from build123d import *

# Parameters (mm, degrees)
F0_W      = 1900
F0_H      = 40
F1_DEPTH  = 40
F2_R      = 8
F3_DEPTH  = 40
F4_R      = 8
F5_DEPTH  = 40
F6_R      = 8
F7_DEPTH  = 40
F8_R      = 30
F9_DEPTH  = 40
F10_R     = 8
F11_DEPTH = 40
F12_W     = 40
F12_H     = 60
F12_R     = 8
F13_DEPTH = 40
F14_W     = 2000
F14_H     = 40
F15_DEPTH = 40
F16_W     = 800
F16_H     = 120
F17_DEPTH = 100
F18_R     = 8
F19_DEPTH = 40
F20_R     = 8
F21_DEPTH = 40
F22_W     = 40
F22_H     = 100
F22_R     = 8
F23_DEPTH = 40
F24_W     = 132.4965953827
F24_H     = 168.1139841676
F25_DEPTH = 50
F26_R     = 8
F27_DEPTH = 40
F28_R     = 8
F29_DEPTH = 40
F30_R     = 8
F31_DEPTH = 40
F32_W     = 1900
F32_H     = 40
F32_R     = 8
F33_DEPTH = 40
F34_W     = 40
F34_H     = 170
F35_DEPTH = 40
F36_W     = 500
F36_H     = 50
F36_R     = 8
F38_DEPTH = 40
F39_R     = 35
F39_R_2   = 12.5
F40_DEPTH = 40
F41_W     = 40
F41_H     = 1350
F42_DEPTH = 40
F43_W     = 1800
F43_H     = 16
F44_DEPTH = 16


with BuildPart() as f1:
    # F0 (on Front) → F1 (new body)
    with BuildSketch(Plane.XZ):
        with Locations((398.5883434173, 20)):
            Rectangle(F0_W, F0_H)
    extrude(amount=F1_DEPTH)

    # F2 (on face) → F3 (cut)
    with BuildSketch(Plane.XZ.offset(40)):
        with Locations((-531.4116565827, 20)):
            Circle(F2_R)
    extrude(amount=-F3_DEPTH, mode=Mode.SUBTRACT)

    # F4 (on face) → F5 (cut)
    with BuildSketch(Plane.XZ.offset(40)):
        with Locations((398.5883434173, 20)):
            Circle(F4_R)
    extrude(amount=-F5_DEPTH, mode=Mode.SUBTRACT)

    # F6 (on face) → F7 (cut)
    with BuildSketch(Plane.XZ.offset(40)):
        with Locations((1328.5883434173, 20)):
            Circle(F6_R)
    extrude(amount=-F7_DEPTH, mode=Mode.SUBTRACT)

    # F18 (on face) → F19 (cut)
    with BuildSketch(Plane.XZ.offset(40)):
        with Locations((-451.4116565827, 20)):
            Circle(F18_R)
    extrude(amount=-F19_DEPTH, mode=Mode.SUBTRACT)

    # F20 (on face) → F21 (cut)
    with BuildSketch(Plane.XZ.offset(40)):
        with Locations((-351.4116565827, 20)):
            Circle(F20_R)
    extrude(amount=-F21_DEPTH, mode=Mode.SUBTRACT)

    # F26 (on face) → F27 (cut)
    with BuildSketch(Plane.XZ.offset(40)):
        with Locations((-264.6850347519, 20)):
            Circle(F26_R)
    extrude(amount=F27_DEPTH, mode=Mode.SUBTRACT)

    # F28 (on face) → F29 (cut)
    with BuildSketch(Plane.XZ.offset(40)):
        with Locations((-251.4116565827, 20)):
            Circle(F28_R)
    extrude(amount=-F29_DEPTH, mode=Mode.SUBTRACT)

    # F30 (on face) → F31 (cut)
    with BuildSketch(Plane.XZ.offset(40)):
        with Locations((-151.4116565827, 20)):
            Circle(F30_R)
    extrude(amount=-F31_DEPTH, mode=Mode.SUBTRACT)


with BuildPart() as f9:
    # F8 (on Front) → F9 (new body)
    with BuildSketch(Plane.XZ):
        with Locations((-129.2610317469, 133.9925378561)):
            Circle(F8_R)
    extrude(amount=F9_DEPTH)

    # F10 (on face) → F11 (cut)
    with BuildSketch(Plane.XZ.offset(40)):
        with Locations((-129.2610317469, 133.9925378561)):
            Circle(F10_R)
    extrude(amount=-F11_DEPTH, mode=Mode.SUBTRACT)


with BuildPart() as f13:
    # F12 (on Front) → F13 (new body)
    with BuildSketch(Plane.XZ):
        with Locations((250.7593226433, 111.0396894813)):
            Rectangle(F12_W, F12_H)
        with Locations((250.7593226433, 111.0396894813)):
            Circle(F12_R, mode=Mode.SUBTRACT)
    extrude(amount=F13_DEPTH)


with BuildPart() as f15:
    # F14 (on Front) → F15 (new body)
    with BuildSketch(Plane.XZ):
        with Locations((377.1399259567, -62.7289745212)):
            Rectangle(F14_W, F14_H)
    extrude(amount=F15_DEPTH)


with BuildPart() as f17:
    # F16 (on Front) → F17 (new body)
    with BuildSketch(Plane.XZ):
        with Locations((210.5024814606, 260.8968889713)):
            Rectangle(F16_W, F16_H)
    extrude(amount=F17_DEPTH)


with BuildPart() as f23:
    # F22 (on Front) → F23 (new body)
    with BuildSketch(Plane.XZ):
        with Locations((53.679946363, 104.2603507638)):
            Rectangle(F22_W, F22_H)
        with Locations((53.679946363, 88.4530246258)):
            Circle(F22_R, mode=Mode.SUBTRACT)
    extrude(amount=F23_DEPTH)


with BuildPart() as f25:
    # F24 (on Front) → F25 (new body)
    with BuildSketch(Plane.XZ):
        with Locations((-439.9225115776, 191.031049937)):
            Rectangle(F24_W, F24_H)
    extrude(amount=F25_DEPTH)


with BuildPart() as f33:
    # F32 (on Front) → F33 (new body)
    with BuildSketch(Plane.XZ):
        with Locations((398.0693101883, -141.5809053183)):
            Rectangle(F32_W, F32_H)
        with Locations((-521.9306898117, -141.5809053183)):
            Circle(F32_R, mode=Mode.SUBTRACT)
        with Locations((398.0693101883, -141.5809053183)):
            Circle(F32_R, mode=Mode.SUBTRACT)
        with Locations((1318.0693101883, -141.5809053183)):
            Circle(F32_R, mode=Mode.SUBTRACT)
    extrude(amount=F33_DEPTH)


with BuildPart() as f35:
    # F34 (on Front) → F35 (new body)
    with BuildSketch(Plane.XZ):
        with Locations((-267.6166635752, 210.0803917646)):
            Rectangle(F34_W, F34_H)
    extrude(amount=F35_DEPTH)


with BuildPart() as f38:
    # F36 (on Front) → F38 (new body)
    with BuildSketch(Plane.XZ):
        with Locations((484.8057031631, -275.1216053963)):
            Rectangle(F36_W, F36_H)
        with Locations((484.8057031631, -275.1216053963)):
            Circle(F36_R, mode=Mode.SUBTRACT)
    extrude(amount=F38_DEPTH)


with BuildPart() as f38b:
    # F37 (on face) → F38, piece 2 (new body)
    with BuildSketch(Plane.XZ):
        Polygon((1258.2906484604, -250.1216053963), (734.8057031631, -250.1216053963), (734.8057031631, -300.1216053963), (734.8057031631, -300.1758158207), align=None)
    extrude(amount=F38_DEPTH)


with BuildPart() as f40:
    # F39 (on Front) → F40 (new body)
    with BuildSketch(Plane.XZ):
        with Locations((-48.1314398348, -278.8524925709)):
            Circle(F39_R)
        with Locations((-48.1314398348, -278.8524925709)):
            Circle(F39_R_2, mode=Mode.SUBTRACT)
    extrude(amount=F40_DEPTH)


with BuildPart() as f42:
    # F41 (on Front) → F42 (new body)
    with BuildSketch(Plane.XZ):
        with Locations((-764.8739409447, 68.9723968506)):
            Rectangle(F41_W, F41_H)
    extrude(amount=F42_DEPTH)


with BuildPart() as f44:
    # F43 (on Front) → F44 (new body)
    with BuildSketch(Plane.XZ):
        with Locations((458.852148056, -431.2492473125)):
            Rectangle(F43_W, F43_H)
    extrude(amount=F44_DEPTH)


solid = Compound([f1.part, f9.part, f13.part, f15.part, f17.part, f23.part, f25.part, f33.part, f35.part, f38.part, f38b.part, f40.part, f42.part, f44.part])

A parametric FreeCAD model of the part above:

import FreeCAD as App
import Part
import Sketcher
Q = App.Units.Quantity


def add_polygon(sketch, points):
    """Adds a closed chain of lines whose ends are joined by coincident constraints."""
    first, n = sketch.GeometryCount, len(points)
    for a, b in zip(points, points[1:] + points[:1]):
        sketch.addGeometry(Part.LineSegment(App.Vector(*a, 0), App.Vector(*b, 0)), False)
    for i in range(n):
        sketch.addConstraint(Sketcher.Constraint("Coincident", first + i, 2, first + (i + 1) % n, 1))

doc = App.newDocument("Part")
body = doc.addObject("PartDesign::Body", "Body")

# Sketch on XZ plane
sketch1 = body.newObject("Sketcher::SketchObject", "Sketch")
sketch1.AttachmentSupport = (doc.getObject("XZ_Plane"), [""])
sketch1.MapMode = "FlatFace"
add_polygon(sketch1, [(-551.411657, 40), (-551.411657, 0), (1348.588343, 0), (1348.588343, 40)])  # lines 0-3
sketch1.addConstraint([
    Sketcher.Constraint("Vertical", 0),
    Sketcher.Constraint("Horizontal", 1),
    Sketcher.Constraint("Vertical", 2),
    Sketcher.Constraint("Horizontal", 3),
    Sketcher.Constraint("PointOnObject", 0, 2, -1),
    Sketcher.Constraint("DistanceX", 1, 1, 1, 2, Q("1900 mm")),
    Sketcher.Constraint("DistanceY", 0, 2, 0, 1, Q("40 mm")),
    Sketcher.Constraint("DistanceX", 0, 2, -1, 1, Q("551.411657 mm")),
])
pad1 = body.newObject("PartDesign::Pad", "Pad")
pad1.Profile = sketch1
pad1.Length = 40

# Sketch on XZ plane
sketch2 = body.newObject("Sketcher::SketchObject", "Sketch001")
sketch2.AttachmentSupport = (doc.getObject("XZ_Plane"), [""])
sketch2.MapMode = "FlatFace"
sketch2.AttachmentOffset = App.Placement(App.Vector(0, 0, 40), App.Rotation())
sketch2.addGeometry(Part.Circle(App.Vector(-531.411657, 20, 0), App.Vector(0, 0, 1), 8), False)
sketch2.addConstraint([
    Sketcher.Constraint("Diameter", 0, Q("16 mm")),
    Sketcher.Constraint("DistanceY", -1, 1, 0, 3, Q("20 mm")),
    Sketcher.Constraint("DistanceX", 0, 3, -1, 1, Q("531.411657 mm")),
])
pocket1 = body.newObject("PartDesign::Pocket", "Pocket")
pocket1.Profile = sketch2
pocket1.Length = 40

# Sketch on XZ plane
sketch3 = body.newObject("Sketcher::SketchObject", "Sketch002")
sketch3.AttachmentSupport = (doc.getObject("XZ_Plane"), [""])
sketch3.MapMode = "FlatFace"
sketch3.AttachmentOffset = App.Placement(App.Vector(0, 0, 40), App.Rotation())
sketch3.addGeometry(Part.Circle(App.Vector(398.588343, 20, 0), App.Vector(0, 0, 1), 8), False)
sketch3.addConstraint([
    Sketcher.Constraint("Diameter", 0, Q("16 mm")),
    Sketcher.Constraint("DistanceY", -1, 1, 0, 3, Q("20 mm")),
    Sketcher.Constraint("DistanceX", -1, 1, 0, 3, Q("398.588343 mm")),
])
pocket2 = body.newObject("PartDesign::Pocket", "Pocket001")
pocket2.Profile = sketch3
pocket2.Length = 40

# Sketch on XZ plane
sketch4 = body.newObject("Sketcher::SketchObject", "Sketch003")
sketch4.AttachmentSupport = (doc.getObject("XZ_Plane"), [""])
sketch4.MapMode = "FlatFace"
sketch4.AttachmentOffset = App.Placement(App.Vector(0, 0, 40), App.Rotation())
sketch4.addGeometry(Part.Circle(App.Vector(1328.588343, 20, 0), App.Vector(0, 0, 1), 8), False)
sketch4.addConstraint([
    Sketcher.Constraint("Diameter", 0, Q("16 mm")),
    Sketcher.Constraint("DistanceY", -1, 1, 0, 3, Q("20 mm")),
    Sketcher.Constraint("DistanceX", -1, 1, 0, 3, Q("1328.588343 mm")),
])
pocket3 = body.newObject("PartDesign::Pocket", "Pocket002")
pocket3.Profile = sketch4
pocket3.Length = 40

# Sketch on XZ plane
sketch5 = body.newObject("Sketcher::SketchObject", "Sketch004")
sketch5.AttachmentSupport = (doc.getObject("XZ_Plane"), [""])
sketch5.MapMode = "FlatFace"
sketch5.AttachmentOffset = App.Placement(App.Vector(0, 0, 40), App.Rotation())
sketch5.addGeometry(Part.Circle(App.Vector(-451.411657, 20, 0), App.Vector(0, 0, 1), 8), False)
sketch5.addConstraint([
    Sketcher.Constraint("Diameter", 0, Q("16 mm")),
    Sketcher.Constraint("DistanceY", -1, 1, 0, 3, Q("20 mm")),
    Sketcher.Constraint("DistanceX", 0, 3, -1, 1, Q("451.411657 mm")),
])
pocket4 = body.newObject("PartDesign::Pocket", "Pocket003")
pocket4.Profile = sketch5
pocket4.Length = 40

# Sketch on XZ plane
sketch6 = body.newObject("Sketcher::SketchObject", "Sketch005")
sketch6.AttachmentSupport = (doc.getObject("XZ_Plane"), [""])
sketch6.MapMode = "FlatFace"
sketch6.AttachmentOffset = App.Placement(App.Vector(0, 0, 40), App.Rotation())
sketch6.addGeometry(Part.Circle(App.Vector(-351.411657, 20, 0), App.Vector(0, 0, 1), 8), False)
sketch6.addConstraint([
    Sketcher.Constraint("Diameter", 0, Q("16 mm")),
    Sketcher.Constraint("DistanceY", -1, 1, 0, 3, Q("20 mm")),
    Sketcher.Constraint("DistanceX", 0, 3, -1, 1, Q("351.411657 mm")),
])
pocket5 = body.newObject("PartDesign::Pocket", "Pocket004")
pocket5.Profile = sketch6
pocket5.Length = 40

# Sketch on XZ plane
sketch7 = body.newObject("Sketcher::SketchObject", "Sketch006")
sketch7.AttachmentSupport = (doc.getObject("XZ_Plane"), [""])
sketch7.MapMode = "FlatFace"
sketch7.AttachmentOffset = App.Placement(App.Vector(0, 0, 40), App.Rotation())
sketch7.addGeometry(Part.Circle(App.Vector(-264.685035, 20, 0), App.Vector(0, 0, 1), 8), False)
sketch7.addConstraint([
    Sketcher.Constraint("Diameter", 0, Q("16 mm")),
    Sketcher.Constraint("DistanceY", -1, 1, 0, 3, Q("20 mm")),
    Sketcher.Constraint("DistanceX", 0, 3, -1, 1, Q("264.685035 mm")),
])
pocket6 = body.newObject("PartDesign::Pocket", "Pocket005")
pocket6.Profile = sketch7
pocket6.Length = 40
pocket6.Reversed = True

# Sketch on XZ plane
sketch8 = body.newObject("Sketcher::SketchObject", "Sketch007")
sketch8.AttachmentSupport = (doc.getObject("XZ_Plane"), [""])
sketch8.MapMode = "FlatFace"
sketch8.AttachmentOffset = App.Placement(App.Vector(0, 0, 40), App.Rotation())
sketch8.addGeometry(Part.Circle(App.Vector(-251.411657, 20, 0), App.Vector(0, 0, 1), 8), False)
sketch8.addConstraint([
    Sketcher.Constraint("Diameter", 0, Q("16 mm")),
    Sketcher.Constraint("DistanceY", -1, 1, 0, 3, Q("20 mm")),
    Sketcher.Constraint("DistanceX", 0, 3, -1, 1, Q("251.411657 mm")),
])
pocket7 = body.newObject("PartDesign::Pocket", "Pocket006")
pocket7.Profile = sketch8
pocket7.Length = 40

# Sketch on XZ plane
sketch9 = body.newObject("Sketcher::SketchObject", "Sketch008")
sketch9.AttachmentSupport = (doc.getObject("XZ_Plane"), [""])
sketch9.MapMode = "FlatFace"
sketch9.AttachmentOffset = App.Placement(App.Vector(0, 0, 40), App.Rotation())
sketch9.addGeometry(Part.Circle(App.Vector(-151.411657, 20, 0), App.Vector(0, 0, 1), 8), False)
sketch9.addConstraint([
    Sketcher.Constraint("Diameter", 0, Q("16 mm")),
    Sketcher.Constraint("DistanceY", -1, 1, 0, 3, Q("20 mm")),
    Sketcher.Constraint("DistanceX", 0, 3, -1, 1, Q("151.411657 mm")),
])
pocket8 = body.newObject("PartDesign::Pocket", "Pocket007")
pocket8.Profile = sketch9
pocket8.Length = 40
body2 = doc.addObject("PartDesign::Body", "Body001")

# Sketch on XZ plane
sketch10 = body2.newObject("Sketcher::SketchObject", "Sketch009")
sketch10.AttachmentSupport = (doc.getObject("XZ_Plane001"), [""])
sketch10.MapMode = "FlatFace"
sketch10.addGeometry(Part.Circle(App.Vector(-129.261032, 133.992538, 0), App.Vector(0, 0, 1), 30), False)
sketch10.addConstraint([
    Sketcher.Constraint("Diameter", 0, Q("60 mm")),
    Sketcher.Constraint("DistanceX", 0, 3, -1, 1, Q("129.261032 mm")),
    Sketcher.Constraint("DistanceY", -1, 1, 0, 3, Q("133.992538 mm")),
])
pad2 = body2.newObject("PartDesign::Pad", "Pad001")
pad2.Profile = sketch10
pad2.Length = 40

# Sketch on XZ plane
sketch11 = body2.newObject("Sketcher::SketchObject", "Sketch010")
sketch11.AttachmentSupport = (doc.getObject("XZ_Plane001"), [""])
sketch11.MapMode = "FlatFace"
sketch11.AttachmentOffset = App.Placement(App.Vector(0, 0, 40), App.Rotation())
sketch11.addGeometry(Part.Circle(App.Vector(-129.261032, 133.992538, 0), App.Vector(0, 0, 1), 8), False)
sketch11.addConstraint([
    Sketcher.Constraint("Diameter", 0, Q("16 mm")),
    Sketcher.Constraint("DistanceX", 0, 3, -1, 1, Q("129.261032 mm")),
    Sketcher.Constraint("DistanceY", -1, 1, 0, 3, Q("133.992538 mm")),
])
pocket9 = body2.newObject("PartDesign::Pocket", "Pocket008")
pocket9.Profile = sketch11
pocket9.Length = 40
body3 = doc.addObject("PartDesign::Body", "Body002")

# Sketch on XZ plane
sketch12 = body3.newObject("Sketcher::SketchObject", "Sketch011")
sketch12.AttachmentSupport = (doc.getObject("XZ_Plane002"), [""])
sketch12.MapMode = "FlatFace"
add_polygon(sketch12, [(230.759323, 141.039689), (230.759323, 81.039689), (270.759323, 81.039689), (270.759323, 141.039689)])  # lines 0-3
sketch12.addGeometry(Part.Circle(App.Vector(250.759323, 111.039689, 0), App.Vector(0, 0, 1), 8), False)  # 4
sketch12.addConstraint([
    Sketcher.Constraint("Vertical", 0),
    Sketcher.Constraint("Horizontal", 1),
    Sketcher.Constraint("Vertical", 2),
    Sketcher.Constraint("Horizontal", 3),
    Sketcher.Constraint("Diameter", 4, Q("16 mm")),
    Sketcher.Constraint("DistanceX", 1, 1, 1, 2, Q("40 mm")),
    Sketcher.Constraint("DistanceY", 0, 2, 0, 1, Q("60 mm")),
    Sketcher.Constraint("DistanceX", 0, 2, 4, 3, Q("20 mm")),
    Sketcher.Constraint("DistanceY", 0, 2, 4, 3, Q("30 mm")),
    Sketcher.Constraint("DistanceY", -1, 1, 4, 3, Q("111.039689 mm")),
    Sketcher.Constraint("DistanceX", -1, 1, 4, 3, Q("250.759323 mm")),
])
pad3 = body3.newObject("PartDesign::Pad", "Pad002")
pad3.Profile = sketch12
pad3.Length = 40
body4 = doc.addObject("PartDesign::Body", "Body003")

# Sketch on XZ plane
sketch13 = body4.newObject("Sketcher::SketchObject", "Sketch012")
sketch13.AttachmentSupport = (doc.getObject("XZ_Plane003"), [""])
sketch13.MapMode = "FlatFace"
add_polygon(sketch13, [(-622.860074, -42.728975), (-622.860074, -82.728975), (1377.139926, -82.728975), (1377.139926, -42.728975)])  # lines 0-3
sketch13.addConstraint([
    Sketcher.Constraint("Vertical", 0),
    Sketcher.Constraint("Horizontal", 1),
    Sketcher.Constraint("Vertical", 2),
    Sketcher.Constraint("Horizontal", 3),
    Sketcher.Constraint("DistanceX", 1, 1, 1, 2, Q("2000 mm")),
    Sketcher.Constraint("DistanceY", 0, 2, 0, 1, Q("40 mm")),
    Sketcher.Constraint("DistanceX", 0, 2, -1, 1, Q("622.860074 mm")),
    Sketcher.Constraint("DistanceY", 0, 2, -1, 1, Q("82.728975 mm")),
])
pad4 = body4.newObject("PartDesign::Pad", "Pad003")
pad4.Profile = sketch13
pad4.Length = 40
body5 = doc.addObject("PartDesign::Body", "Body004")

# Sketch on XZ plane
sketch14 = body5.newObject("Sketcher::SketchObject", "Sketch013")
sketch14.AttachmentSupport = (doc.getObject("XZ_Plane004"), [""])
sketch14.MapMode = "FlatFace"
add_polygon(sketch14, [(-189.497519, 320.896889), (-189.497519, 200.896889), (610.502481, 200.896889), (610.502481, 320.896889)])  # lines 0-3
sketch14.addConstraint([
    Sketcher.Constraint("Vertical", 0),
    Sketcher.Constraint("Horizontal", 1),
    Sketcher.Constraint("Vertical", 2),
    Sketcher.Constraint("Horizontal", 3),
    Sketcher.Constraint("DistanceX", 1, 1, 1, 2, Q("800 mm")),
    Sketcher.Constraint("DistanceY", 0, 2, 0, 1, Q("120 mm")),
    Sketcher.Constraint("DistanceX", 0, 2, -1, 1, Q("189.497519 mm")),
    Sketcher.Constraint("DistanceY", -1, 1, 0, 2, Q("200.896889 mm")),
])
pad5 = body5.newObject("PartDesign::Pad", "Pad004")
pad5.Profile = sketch14
pad5.Length = 100
body6 = doc.addObject("PartDesign::Body", "Body005")

# Sketch on XZ plane
sketch15 = body6.newObject("Sketcher::SketchObject", "Sketch014")
sketch15.AttachmentSupport = (doc.getObject("XZ_Plane005"), [""])
sketch15.MapMode = "FlatFace"
add_polygon(sketch15, [(33.679946, 154.260351), (33.679946, 54.260351), (73.679946, 54.260351), (73.679946, 154.260351)])  # lines 0-3
sketch15.addGeometry(Part.Circle(App.Vector(53.679946, 88.453025, 0), App.Vector(0, 0, 1), 8), False)  # 4
sketch15.addConstraint([
    Sketcher.Constraint("Vertical", 0),
    Sketcher.Constraint("Horizontal", 1),
    Sketcher.Constraint("Vertical", 2),
    Sketcher.Constraint("Horizontal", 3),
    Sketcher.Constraint("Diameter", 4, Q("16 mm")),
    Sketcher.Constraint("DistanceX", 1, 1, 1, 2, Q("40 mm")),
    Sketcher.Constraint("DistanceY", 0, 2, 0, 1, Q("100 mm")),
    Sketcher.Constraint("DistanceX", 0, 2, 4, 3, Q("20 mm")),
    Sketcher.Constraint("DistanceY", -1, 1, 0, 2, Q("54.260351 mm")),
    Sketcher.Constraint("DistanceX", -1, 1, 4, 3, Q("53.679946 mm")),
    Sketcher.Constraint("DistanceY", -1, 1, 4, 3, Q("88.453025 mm")),
])
pad6 = body6.newObject("PartDesign::Pad", "Pad005")
pad6.Profile = sketch15
pad6.Length = 40
body7 = doc.addObject("PartDesign::Body", "Body006")

# Sketch on XZ plane
sketch16 = body7.newObject("Sketcher::SketchObject", "Sketch015")
sketch16.AttachmentSupport = (doc.getObject("XZ_Plane006"), [""])
sketch16.MapMode = "FlatFace"
add_polygon(sketch16, [(-506.170809, 275.088042), (-506.170809, 106.974058), (-373.674214, 106.974058), (-373.674214, 275.088042)])  # lines 0-3
sketch16.addConstraint([
    Sketcher.Constraint("Vertical", 0),
    Sketcher.Constraint("Horizontal", 1),
    Sketcher.Constraint("Vertical", 2),
    Sketcher.Constraint("Horizontal", 3),
    Sketcher.Constraint("DistanceX", 1, 1, 1, 2, Q("132.496595 mm")),
    Sketcher.Constraint("DistanceY", 0, 2, 0, 1, Q("168.113984 mm")),
    Sketcher.Constraint("DistanceX", 0, 2, -1, 1, Q("506.170809 mm")),
    Sketcher.Constraint("DistanceY", -1, 1, 0, 2, Q("106.974058 mm")),
])
pad7 = body7.newObject("PartDesign::Pad", "Pad006")
pad7.Profile = sketch16
pad7.Length = 50
body8 = doc.addObject("PartDesign::Body", "Body007")

# Sketch on XZ plane
sketch17 = body8.newObject("Sketcher::SketchObject", "Sketch016")
sketch17.AttachmentSupport = (doc.getObject("XZ_Plane007"), [""])
sketch17.MapMode = "FlatFace"
add_polygon(sketch17, [(-551.93069, -121.580905), (-551.93069, -161.580905), (1348.06931, -161.580905), (1348.06931, -121.580905)])  # lines 0-3
sketch17.addGeometry(Part.Circle(App.Vector(-521.93069, -141.580905, 0), App.Vector(0, 0, 1), 8), False)  # 4
sketch17.addGeometry(Part.Circle(App.Vector(398.06931, -141.580905, 0), App.Vector(0, 0, 1), 8), False)  # 5
sketch17.addGeometry(Part.Circle(App.Vector(1318.06931, -141.580905, 0), App.Vector(0, 0, 1), 8), False)  # 6
sketch17.addConstraint([
    Sketcher.Constraint("Vertical", 0),
    Sketcher.Constraint("Horizontal", 1),
    Sketcher.Constraint("Vertical", 2),
    Sketcher.Constraint("Horizontal", 3),
    Sketcher.Constraint("Equal", 4, 5),
    Sketcher.Constraint("Equal", 5, 6),
    Sketcher.Constraint("Horizontal", 4, 3, 5, 3),
    Sketcher.Constraint("Horizontal", 5, 3, 6, 3),
    Sketcher.Constraint("Diameter", 4, Q("16 mm")),
    Sketcher.Constraint("DistanceX", 1, 1, 1, 2, Q("1900 mm")),
    Sketcher.Constraint("DistanceY", 0, 2, 0, 1, Q("40 mm")),
    Sketcher.Constraint("DistanceX", 4, 3, 5, 3, Q("920 mm")),
    Sketcher.Constraint("DistanceX", 5, 3, 6, 3, Q("920 mm")),
    Sketcher.Constraint("DistanceX", 0, 2, 4, 3, Q("30 mm")),
    Sketcher.Constraint("DistanceY", 0, 2, 4, 3, Q("20 mm")),
    Sketcher.Constraint("DistanceX", 4, 3, -1, 1, Q("521.93069 mm")),
    Sketcher.Constraint("DistanceY", 4, 3, -1, 1, Q("141.580905 mm")),
])
pad8 = body8.newObject("PartDesign::Pad", "Pad007")
pad8.Profile = sketch17
pad8.Length = 40
body9 = doc.addObject("PartDesign::Body", "Body008")

# Sketch on XZ plane
sketch18 = body9.newObject("Sketcher::SketchObject", "Sketch017")
sketch18.AttachmentSupport = (doc.getObject("XZ_Plane008"), [""])
sketch18.MapMode = "FlatFace"
add_polygon(sketch18, [(-287.616664, 295.080392), (-287.616664, 125.080392), (-247.616664, 125.080392), (-247.616664, 295.080392)])  # lines 0-3
sketch18.addConstraint([
    Sketcher.Constraint("Vertical", 0),
    Sketcher.Constraint("Horizontal", 1),
    Sketcher.Constraint("Vertical", 2),
    Sketcher.Constraint("Horizontal", 3),
    Sketcher.Constraint("DistanceX", 1, 1, 1, 2, Q("40 mm")),
    Sketcher.Constraint("DistanceY", 0, 2, 0, 1, Q("170 mm")),
    Sketcher.Constraint("DistanceY", -1, 1, 0, 2, Q("125.080392 mm")),
    Sketcher.Constraint("DistanceX", 0, 2, -1, 1, Q("287.616664 mm")),
])
pad9 = body9.newObject("PartDesign::Pad", "Pad008")
pad9.Profile = sketch18
pad9.Length = 40
body10 = doc.addObject("PartDesign::Body", "Body009")

# Sketch on XZ plane
sketch19 = body10.newObject("Sketcher::SketchObject", "Sketch018")
sketch19.AttachmentSupport = (doc.getObject("XZ_Plane009"), [""])
sketch19.MapMode = "FlatFace"
add_polygon(sketch19, [(234.805703, -250.121605), (234.805703, -300.121605), (734.805703, -300.121605), (734.805703, -250.121605)])  # lines 0-3
sketch19.addGeometry(Part.Circle(App.Vector(484.805703, -275.121605, 0), App.Vector(0, 0, 1), 8), False)  # 4
sketch19.addConstraint([
    Sketcher.Constraint("Vertical", 0),
    Sketcher.Constraint("Horizontal", 1),
    Sketcher.Constraint("Vertical", 2),
    Sketcher.Constraint("Horizontal", 3),
    Sketcher.Constraint("Diameter", 4, Q("16 mm")),
    Sketcher.Constraint("DistanceX", 1, 1, 1, 2, Q("500 mm")),
    Sketcher.Constraint("DistanceY", 0, 2, 0, 1, Q("50 mm")),
    Sketcher.Constraint("DistanceX", 0, 2, 4, 3, Q("250 mm")),
    Sketcher.Constraint("DistanceY", 0, 2, 4, 3, Q("25 mm")),
    Sketcher.Constraint("DistanceX", -1, 1, 4, 3, Q("484.805703 mm")),
    Sketcher.Constraint("DistanceY", 4, 3, -1, 1, Q("275.121605 mm")),
])
pad10 = body10.newObject("PartDesign::Pad", "Pad009")
pad10.Profile = sketch19
pad10.Length = 40
body11 = doc.addObject("PartDesign::Body", "Body010")

# Sketch on XZ plane
sketch20 = body11.newObject("Sketcher::SketchObject", "Sketch019")
sketch20.AttachmentSupport = (doc.getObject("XZ_Plane010"), [""])
sketch20.MapMode = "FlatFace"
add_polygon(sketch20, [(1258.290648, -250.121605), (734.805703, -250.121605), (734.805703, -300.175816)])  # lines 0-2
sketch20.addConstraint([
    Sketcher.Constraint("Horizontal", 0),
    Sketcher.Constraint("Vertical", 1),
    Sketcher.Constraint("DistanceY", 1, 2, 1, 1, Q("50.05421 mm")),
    Sketcher.Constraint("DistanceX", 0, 2, 0, 1, Q("523.484945 mm")),
    Sketcher.Constraint("DistanceX", -1, 1, 2, 2, Q("1258.290648 mm")),
    Sketcher.Constraint("DistanceY", 0, 2, -1, 1, Q("250.121605 mm")),
])
pad11 = body11.newObject("PartDesign::Pad", "Pad010")
pad11.Profile = sketch20
pad11.Length = 40
body12 = doc.addObject("PartDesign::Body", "Body011")

# Sketch on XZ plane
sketch21 = body12.newObject("Sketcher::SketchObject", "Sketch020")
sketch21.AttachmentSupport = (doc.getObject("XZ_Plane011"), [""])
sketch21.MapMode = "FlatFace"
sketch21.addGeometry([
    Part.Circle(App.Vector(-48.13144, -278.852493, 0), App.Vector(0, 0, 1), 35),
    Part.Circle(App.Vector(-48.13144, -278.852493, 0), App.Vector(0, 0, 1), 12.5),
], False)
sketch21.addConstraint([
    Sketcher.Constraint("Coincident", 1, 3, 0, 3),
    Sketcher.Constraint("Diameter", 0, Q("70 mm")),
    Sketcher.Constraint("Diameter", 1, Q("25 mm")),
    Sketcher.Constraint("DistanceX", 0, 3, -1, 1, Q("48.13144 mm")),
    Sketcher.Constraint("DistanceY", 0, 3, -1, 1, Q("278.852493 mm")),
])
pad12 = body12.newObject("PartDesign::Pad", "Pad011")
pad12.Profile = sketch21
pad12.Length = 40
body13 = doc.addObject("PartDesign::Body", "Body012")

# Sketch on XZ plane
sketch22 = body13.newObject("Sketcher::SketchObject", "Sketch021")
sketch22.AttachmentSupport = (doc.getObject("XZ_Plane012"), [""])
sketch22.MapMode = "FlatFace"
add_polygon(sketch22, [(-784.873941, 743.972397), (-784.873941, -606.027603), (-744.873941, -606.027603), (-744.873941, 743.972397)])  # lines 0-3
sketch22.addConstraint([
    Sketcher.Constraint("Vertical", 0),
    Sketcher.Constraint("Horizontal", 1),
    Sketcher.Constraint("Vertical", 2),
    Sketcher.Constraint("Horizontal", 3),
    Sketcher.Constraint("DistanceX", 1, 1, 1, 2, Q("40 mm")),
    Sketcher.Constraint("DistanceY", 0, 2, 0, 1, Q("1350 mm")),
    Sketcher.Constraint("DistanceX", 0, 2, -1, 1, Q("784.873941 mm")),
    Sketcher.Constraint("DistanceY", 0, 2, -1, 1, Q("606.027603 mm")),
])
pad13 = body13.newObject("PartDesign::Pad", "Pad012")
pad13.Profile = sketch22
pad13.Length = 40
body14 = doc.addObject("PartDesign::Body", "Body013")

# Sketch on XZ plane
sketch23 = body14.newObject("Sketcher::SketchObject", "Sketch022")
sketch23.AttachmentSupport = (doc.getObject("XZ_Plane013"), [""])
sketch23.MapMode = "FlatFace"
add_polygon(sketch23, [(-441.147852, -423.249247), (-441.147852, -439.249247), (1358.852148, -439.249247), (1358.852148, -423.249247)])  # lines 0-3
sketch23.addConstraint([
    Sketcher.Constraint("Vertical", 0),
    Sketcher.Constraint("Horizontal", 1),
    Sketcher.Constraint("Vertical", 2),
    Sketcher.Constraint("Horizontal", 3),
    Sketcher.Constraint("DistanceX", 1, 1, 1, 2, Q("1800 mm")),
    Sketcher.Constraint("DistanceY", 0, 2, 0, 1, Q("16 mm")),
    Sketcher.Constraint("DistanceX", 0, 2, -1, 1, Q("441.147852 mm")),
    Sketcher.Constraint("DistanceY", 0, 2, -1, 1, Q("439.249247 mm")),
])
pad14 = body14.newObject("PartDesign::Pad", "Pad013")
pad14.Profile = sketch23
pad14.Length = 16

doc.recompute()
